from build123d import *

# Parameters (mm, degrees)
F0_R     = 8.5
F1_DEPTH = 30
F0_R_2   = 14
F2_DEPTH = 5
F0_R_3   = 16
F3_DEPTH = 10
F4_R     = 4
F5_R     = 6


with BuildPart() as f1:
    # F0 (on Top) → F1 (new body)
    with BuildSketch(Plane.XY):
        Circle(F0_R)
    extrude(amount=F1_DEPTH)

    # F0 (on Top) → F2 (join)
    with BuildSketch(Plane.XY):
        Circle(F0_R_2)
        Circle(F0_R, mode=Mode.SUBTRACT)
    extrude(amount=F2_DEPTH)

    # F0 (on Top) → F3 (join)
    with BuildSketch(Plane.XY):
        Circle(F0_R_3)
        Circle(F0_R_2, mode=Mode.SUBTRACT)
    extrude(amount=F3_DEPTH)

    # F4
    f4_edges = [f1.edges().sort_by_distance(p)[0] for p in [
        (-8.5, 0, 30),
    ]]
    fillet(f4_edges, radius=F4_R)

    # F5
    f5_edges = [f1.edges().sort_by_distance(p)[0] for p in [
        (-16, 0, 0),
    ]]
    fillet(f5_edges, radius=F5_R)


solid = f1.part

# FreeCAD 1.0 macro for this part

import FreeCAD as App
import Part
import Sketcher


def edges_at(feature, points):
    """Names of the edges that pass closest to the given points."""
    edges = feature.Shape.Edges
    near = lambda p: min(range(len(edges)), key=lambda i: edges[i].distToShape(Part.Vertex(*p))[0])
    return sorted({f"Edge{near(p) + 1}" for p in points})

doc = App.newDocument("Part")
body = doc.addObject("PartDesign::Body", "Body")

# Sketch on XY plane
sketch1 = doc.addObject("Sketcher::SketchObject", "Sketch")
body.addObject(sketch1)
sketch1.AttachmentSupport = (doc.XY_Plane, [""])
sketch1.MapMode = "FlatFace"
sketch1.addGeometry(Part.Circle(App.Vector(0, 0, 0), App.Vector(0, 0, 1), 8), False)
sketch1.addConstraint(Sketcher.Constraint("Coincident", 0, 3, -1, 1))
sketch1.addConstraint(Sketcher.Constraint("Diameter", 0, 17.0))
pad1 = doc.addObject("PartDesign::Pad", "Pad")
body.addObject(pad1)
pad1.Profile = sketch1
pad1.Length = 30

# Sketch on XY plane
sketch2 = doc.addObject("Sketcher::SketchObject", "Sketch001")
body.addObject(sketch2)
sketch2.AttachmentSupport = (doc.XY_Plane, [""])
sketch2.MapMode = "FlatFace"
sketch2.addGeometry(Part.Circle(App.Vector(0, 0, 0), App.Vector(0, 0, 1), 14), False)
sketch2.addGeometry(Part.Circle(App.Vector(0, 0, 0), App.Vector(0, 0, 1), 8), False)
sketch2.addConstraint(Sketcher.Constraint("Coincident", 0, 3, -1, 1))
sketch2.addConstraint(Sketcher.Constraint("Coincident", 1, 3, -1, 1))
sketch2.addConstraint(Sketcher.Constraint("Diameter", 0, 28.0))
sketch2.addConstraint(Sketcher.Constraint("Diameter", 1, 17.0))
pad2 = doc.addObject("PartDesign::Pad", "Pad001")
body.addObject(pad2)
pad2.Profile = sketch2
pad2.Length = 5

# Sketch on XY plane
sketch3 = doc.addObject("Sketcher::SketchObject", "Sketch002")
body.addObject(sketch3)
sketch3.AttachmentSupport = (doc.XY_Plane, [""])
sketch3.MapMode = "FlatFace"
sketch3.addGeometry(Part.Circle(App.Vector(0, 0, 0), App.Vector(0, 0, 1), 16), False)
sketch3.addGeometry(Part.Circle(App.Vector(0, 0, 0), App.Vector(0, 0, 1), 14), False)
sketch3.addConstraint(Sketcher.Constraint("Coincident", 0, 3, -1, 1))
sketch3.addConstraint(Sketcher.Constraint("Coincident", 1, 3, -1, 1))
sketch3.addConstraint(Sketcher.Constraint("Diameter", 0, 32.0))
sketch3.addConstraint(Sketcher.Constraint("Diameter", 1, 28.0))
pad3 = doc.addObject("PartDesign::Pad", "Pad002")
body.addObject(pad3)
pad3.Profile = sketch3
pad3.Length = 10
doc.recompute()

fillet = doc.addObject("PartDesign::Fillet", "Fillet")
body.addObject(fillet)
fillet.Base = (pad3, edges_at(pad3, [(-8.5, 0, 30)]))
fillet.Radius = 4
doc.recompute()

fillet2 = doc.addObject("PartDesign::Fillet", "Fillet001")
body.addObject(fillet2)
fillet2.Base = (fillet, edges_at(fillet, [(-16, 0, 0)]))
fillet2.Radius = 6

doc.recompute()
